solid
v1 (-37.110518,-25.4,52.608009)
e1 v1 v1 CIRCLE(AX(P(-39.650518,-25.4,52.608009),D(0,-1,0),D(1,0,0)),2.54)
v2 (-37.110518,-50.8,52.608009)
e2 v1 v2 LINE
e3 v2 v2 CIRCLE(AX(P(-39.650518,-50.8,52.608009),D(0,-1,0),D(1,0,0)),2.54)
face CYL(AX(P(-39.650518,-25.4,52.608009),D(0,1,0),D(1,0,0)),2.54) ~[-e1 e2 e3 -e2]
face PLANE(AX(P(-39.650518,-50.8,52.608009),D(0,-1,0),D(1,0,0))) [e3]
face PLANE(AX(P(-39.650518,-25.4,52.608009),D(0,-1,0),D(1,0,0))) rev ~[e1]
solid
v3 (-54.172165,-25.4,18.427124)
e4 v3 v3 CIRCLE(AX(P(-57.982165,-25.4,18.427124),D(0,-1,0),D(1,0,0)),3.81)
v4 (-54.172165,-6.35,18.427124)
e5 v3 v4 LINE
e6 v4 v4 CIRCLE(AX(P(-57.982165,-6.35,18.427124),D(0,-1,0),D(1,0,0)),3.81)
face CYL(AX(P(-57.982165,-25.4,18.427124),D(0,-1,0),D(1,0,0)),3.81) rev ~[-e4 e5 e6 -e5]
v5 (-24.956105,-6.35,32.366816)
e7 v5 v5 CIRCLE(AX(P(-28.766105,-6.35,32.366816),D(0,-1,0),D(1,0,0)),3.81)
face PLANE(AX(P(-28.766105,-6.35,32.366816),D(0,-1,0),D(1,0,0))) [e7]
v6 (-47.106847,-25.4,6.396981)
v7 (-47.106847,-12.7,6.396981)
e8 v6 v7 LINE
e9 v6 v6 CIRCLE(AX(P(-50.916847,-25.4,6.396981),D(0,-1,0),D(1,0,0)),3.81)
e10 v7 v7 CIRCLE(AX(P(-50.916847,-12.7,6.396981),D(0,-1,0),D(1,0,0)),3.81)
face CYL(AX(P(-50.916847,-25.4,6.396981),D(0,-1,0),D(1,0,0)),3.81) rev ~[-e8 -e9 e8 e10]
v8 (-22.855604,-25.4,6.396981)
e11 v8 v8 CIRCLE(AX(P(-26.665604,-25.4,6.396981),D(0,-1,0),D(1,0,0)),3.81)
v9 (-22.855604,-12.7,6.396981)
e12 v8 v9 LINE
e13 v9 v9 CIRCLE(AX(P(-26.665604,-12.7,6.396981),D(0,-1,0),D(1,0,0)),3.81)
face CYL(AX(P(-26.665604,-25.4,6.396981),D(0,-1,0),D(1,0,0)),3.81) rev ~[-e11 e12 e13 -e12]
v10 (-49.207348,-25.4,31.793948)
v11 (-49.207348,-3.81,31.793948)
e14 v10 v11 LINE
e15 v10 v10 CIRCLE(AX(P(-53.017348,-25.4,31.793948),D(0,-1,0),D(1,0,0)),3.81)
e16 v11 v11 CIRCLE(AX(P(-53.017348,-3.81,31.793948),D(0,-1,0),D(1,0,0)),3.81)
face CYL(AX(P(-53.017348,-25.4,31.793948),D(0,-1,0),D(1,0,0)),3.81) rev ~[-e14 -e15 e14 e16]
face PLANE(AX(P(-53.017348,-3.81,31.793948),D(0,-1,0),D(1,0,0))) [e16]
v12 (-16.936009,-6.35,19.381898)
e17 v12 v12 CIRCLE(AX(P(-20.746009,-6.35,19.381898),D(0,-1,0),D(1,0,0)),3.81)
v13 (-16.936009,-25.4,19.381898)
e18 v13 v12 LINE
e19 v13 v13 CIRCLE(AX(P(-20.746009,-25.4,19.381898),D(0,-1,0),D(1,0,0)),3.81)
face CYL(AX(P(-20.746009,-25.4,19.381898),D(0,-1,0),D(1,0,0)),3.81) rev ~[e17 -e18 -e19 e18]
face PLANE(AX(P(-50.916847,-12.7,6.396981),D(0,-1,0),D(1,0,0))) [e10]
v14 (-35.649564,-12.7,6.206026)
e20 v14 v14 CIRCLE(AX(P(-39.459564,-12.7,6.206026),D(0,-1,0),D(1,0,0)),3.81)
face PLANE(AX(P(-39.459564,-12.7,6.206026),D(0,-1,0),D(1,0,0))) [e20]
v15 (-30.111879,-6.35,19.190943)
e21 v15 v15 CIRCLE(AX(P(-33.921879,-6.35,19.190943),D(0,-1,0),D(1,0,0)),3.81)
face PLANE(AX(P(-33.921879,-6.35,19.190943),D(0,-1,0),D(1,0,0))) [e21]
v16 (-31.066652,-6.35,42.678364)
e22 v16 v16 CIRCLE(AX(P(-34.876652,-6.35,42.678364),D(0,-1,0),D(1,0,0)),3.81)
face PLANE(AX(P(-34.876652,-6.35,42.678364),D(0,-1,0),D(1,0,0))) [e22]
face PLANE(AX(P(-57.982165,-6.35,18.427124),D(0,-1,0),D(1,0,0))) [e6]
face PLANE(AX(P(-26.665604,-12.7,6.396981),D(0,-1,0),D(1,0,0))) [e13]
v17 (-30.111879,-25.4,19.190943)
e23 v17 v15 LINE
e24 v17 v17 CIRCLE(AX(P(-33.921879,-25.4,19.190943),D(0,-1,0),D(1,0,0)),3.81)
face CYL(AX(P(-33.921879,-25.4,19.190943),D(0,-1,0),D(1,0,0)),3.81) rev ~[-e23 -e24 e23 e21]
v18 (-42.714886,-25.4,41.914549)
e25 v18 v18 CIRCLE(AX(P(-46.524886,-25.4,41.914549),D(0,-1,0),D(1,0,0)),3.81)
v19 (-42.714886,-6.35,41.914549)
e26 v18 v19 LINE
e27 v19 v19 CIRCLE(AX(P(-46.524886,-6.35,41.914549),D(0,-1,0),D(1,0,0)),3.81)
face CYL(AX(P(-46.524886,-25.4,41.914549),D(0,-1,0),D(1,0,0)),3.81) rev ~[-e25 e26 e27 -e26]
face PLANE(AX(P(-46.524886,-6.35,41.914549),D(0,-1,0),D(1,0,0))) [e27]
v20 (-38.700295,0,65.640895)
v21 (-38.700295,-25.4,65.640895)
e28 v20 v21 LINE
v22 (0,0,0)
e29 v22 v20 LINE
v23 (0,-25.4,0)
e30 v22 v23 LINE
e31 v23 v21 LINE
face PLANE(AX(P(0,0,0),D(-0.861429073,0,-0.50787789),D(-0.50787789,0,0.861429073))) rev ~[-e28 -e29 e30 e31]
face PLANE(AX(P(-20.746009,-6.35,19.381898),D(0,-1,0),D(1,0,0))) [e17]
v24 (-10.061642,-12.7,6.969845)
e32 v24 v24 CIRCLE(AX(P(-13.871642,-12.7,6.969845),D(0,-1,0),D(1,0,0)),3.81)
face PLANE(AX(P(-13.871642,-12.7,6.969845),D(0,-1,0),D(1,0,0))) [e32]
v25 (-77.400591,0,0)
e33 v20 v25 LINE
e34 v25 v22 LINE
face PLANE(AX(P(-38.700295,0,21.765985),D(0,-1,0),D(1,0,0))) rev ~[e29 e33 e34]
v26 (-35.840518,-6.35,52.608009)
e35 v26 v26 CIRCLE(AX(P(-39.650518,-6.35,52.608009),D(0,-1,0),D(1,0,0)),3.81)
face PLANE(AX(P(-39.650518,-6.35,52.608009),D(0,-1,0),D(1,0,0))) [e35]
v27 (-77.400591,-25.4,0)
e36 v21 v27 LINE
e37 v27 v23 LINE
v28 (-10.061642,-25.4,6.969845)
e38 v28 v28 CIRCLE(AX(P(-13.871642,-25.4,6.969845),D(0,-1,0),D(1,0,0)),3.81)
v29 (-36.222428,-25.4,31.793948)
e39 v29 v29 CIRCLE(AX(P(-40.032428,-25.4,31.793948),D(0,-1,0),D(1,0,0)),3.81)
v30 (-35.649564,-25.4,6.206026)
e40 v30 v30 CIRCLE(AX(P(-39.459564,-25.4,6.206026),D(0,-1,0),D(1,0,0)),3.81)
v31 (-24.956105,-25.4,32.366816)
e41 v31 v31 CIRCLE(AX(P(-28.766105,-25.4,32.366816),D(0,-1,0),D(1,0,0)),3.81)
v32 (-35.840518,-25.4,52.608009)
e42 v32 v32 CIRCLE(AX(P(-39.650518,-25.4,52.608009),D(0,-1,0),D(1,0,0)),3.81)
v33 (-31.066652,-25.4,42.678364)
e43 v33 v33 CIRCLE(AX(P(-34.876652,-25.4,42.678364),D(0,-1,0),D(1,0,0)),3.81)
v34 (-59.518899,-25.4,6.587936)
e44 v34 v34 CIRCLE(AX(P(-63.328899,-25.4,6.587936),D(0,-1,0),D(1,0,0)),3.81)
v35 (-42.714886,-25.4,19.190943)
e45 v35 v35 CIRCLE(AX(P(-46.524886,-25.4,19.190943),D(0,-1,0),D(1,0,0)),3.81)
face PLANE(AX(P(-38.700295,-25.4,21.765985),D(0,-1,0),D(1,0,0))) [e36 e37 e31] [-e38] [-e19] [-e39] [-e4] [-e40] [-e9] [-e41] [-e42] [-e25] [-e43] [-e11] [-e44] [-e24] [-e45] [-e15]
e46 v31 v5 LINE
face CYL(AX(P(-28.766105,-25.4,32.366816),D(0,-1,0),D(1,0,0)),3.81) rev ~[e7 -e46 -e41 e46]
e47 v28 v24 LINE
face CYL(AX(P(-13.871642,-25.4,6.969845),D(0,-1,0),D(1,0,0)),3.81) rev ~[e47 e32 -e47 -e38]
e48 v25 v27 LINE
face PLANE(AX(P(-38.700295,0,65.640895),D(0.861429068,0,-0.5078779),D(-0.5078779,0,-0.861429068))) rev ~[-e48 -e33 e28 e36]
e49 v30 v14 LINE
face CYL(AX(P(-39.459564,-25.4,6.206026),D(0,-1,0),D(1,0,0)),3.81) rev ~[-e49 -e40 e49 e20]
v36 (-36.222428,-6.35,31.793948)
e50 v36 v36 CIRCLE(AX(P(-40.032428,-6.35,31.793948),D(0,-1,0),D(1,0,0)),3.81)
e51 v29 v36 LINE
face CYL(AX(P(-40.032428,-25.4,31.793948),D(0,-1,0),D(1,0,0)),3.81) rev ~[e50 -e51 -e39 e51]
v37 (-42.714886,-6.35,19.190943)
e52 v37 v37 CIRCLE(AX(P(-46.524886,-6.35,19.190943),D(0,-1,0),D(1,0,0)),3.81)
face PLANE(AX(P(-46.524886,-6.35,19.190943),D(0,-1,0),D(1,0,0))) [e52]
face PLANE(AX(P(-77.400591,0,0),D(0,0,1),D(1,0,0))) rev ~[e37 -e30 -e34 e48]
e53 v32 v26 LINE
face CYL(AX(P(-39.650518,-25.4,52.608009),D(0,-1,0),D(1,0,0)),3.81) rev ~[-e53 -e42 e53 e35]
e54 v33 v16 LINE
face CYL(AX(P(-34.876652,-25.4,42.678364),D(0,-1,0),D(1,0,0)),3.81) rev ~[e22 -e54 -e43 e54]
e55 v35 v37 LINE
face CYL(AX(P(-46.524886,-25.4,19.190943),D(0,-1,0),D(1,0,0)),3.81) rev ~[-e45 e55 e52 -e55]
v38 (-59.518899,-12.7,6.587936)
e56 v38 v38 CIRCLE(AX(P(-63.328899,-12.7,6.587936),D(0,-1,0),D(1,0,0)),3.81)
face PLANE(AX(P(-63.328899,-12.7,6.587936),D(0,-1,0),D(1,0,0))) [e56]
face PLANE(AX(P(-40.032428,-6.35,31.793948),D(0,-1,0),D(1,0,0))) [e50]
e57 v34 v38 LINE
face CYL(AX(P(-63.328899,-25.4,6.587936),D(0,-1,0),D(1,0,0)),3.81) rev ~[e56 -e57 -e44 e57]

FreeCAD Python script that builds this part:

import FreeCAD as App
import Part
import Sketcher

V = App.Vector
Q = App.Units.Quantity

doc = App.newDocument("Part")
body = doc.addObject("PartDesign::Body", "Body")

sketch1 = body.newObject("Sketcher::SketchObject", "Sketch")
sketch1.AttachmentSupport = (doc.getObject("XZ_Plane"), [""])
sketch1.MapMode = "FlatFace"
sketch1.addGeometry([
    Part.LineSegment(V(-77.400591, 0, 0), V(0, 0, 0)),
    Part.LineSegment(V(0, 0, 0), V(-38.700295, 65.640895, 0)),
    Part.LineSegment(V(-38.700295, 65.640895, 0), V(-77.400591, 0, 0)),
], False)
sketch1.addConstraint([
    Sketcher.Constraint("Coincident", 0, 2, 1, 1),
    Sketcher.Constraint("Coincident", 1, 2, 2, 1),
    Sketcher.Constraint("Coincident", 2, 2, 0, 1),
    Sketcher.Constraint("Horizontal", 0),
    Sketcher.Constraint("Coincident", 0, 2, -1, 1),
    Sketcher.Constraint("Equal", 1, 2),
    Sketcher.Constraint("Distance", 1, Q("3 in")),
    Sketcher.Constraint("DistanceX", 0, 1, 0, 2, 77.400591),
])
pad1 = body.newObject("PartDesign::Pad", "Pad")
pad1.Profile = sketch1
pad1.Length = Q("1 in")

sketch2 = body.newObject("Sketcher::SketchObject", "Sketch001")
sketch2.AttachmentSupport = (doc.getObject("XZ_Plane"), [""])
sketch2.MapMode = "FlatFace"
sketch2.AttachmentOffset = App.Placement(V(0, 0, 1 * 25.4), App.Rotation())
sketch2.addGeometry([
    Part.Circle(V(-63.328899, 6.587936, 0), V(0, 0, 1), 3.81),
    Part.Circle(V(-50.916847, 6.396981, 0), V(0, 0, 1), 3.81),
    Part.Circle(V(-39.459564, 6.206026, 0), V(0, 0, 1), 3.81),
    Part.Circle(V(-26.665604, 6.396981, 0), V(0, 0, 1), 3.81),
    Part.Circle(V(-13.871642, 6.969845, 0), V(0, 0, 1), 3.81),
], False)
sketch2.addConstraint([
    Sketcher.Constraint("Equal", 0, 1),
    Sketcher.Constraint("Equal", 1, 2),
    Sketcher.Constraint("Equal", 2, 3),
    Sketcher.Constraint("Equal", 3, 4),
    Sketcher.Constraint("Horizontal", 1, 3, 3, 3),
    Sketcher.Constraint("Diameter", 0, Q("0.3 in")),
    Sketcher.Constraint("DistanceX", 0, 3, -1, 1, 63.328899),
    Sketcher.Constraint("DistanceY", -1, 1, 1, 3, 6.396981),
    Sketcher.Constraint("DistanceY", 2, 3, 0, 3, 0.38191),
    Sketcher.Constraint("DistanceX", 2, 3, 3, 3, 12.79396),
    Sketcher.Constraint("DistanceX", 3, 3, 4, 3, 12.793962),
    Sketcher.Constraint("DistanceY", 2, 3, 4, 3, 0.763819),
    Sketcher.Constraint("DistanceY", -1, 1, 0, 3, 6.587936),
    Sketcher.Constraint("DistanceX", 1, 3, -1, 1, 50.916847),
    Sketcher.Constraint("DistanceX", 2, 3, -1, 1, 39.459564),
])
pocket1 = body.newObject("PartDesign::Pocket", "Pocket")
pocket1.Profile = sketch2
pocket1.Length = Q("0.5 in")

sketch3 = body.newObject("Sketcher::SketchObject", "Sketch002")
sketch3.AttachmentSupport = (doc.getObject("XZ_Plane"), [""])
sketch3.MapMode = "FlatFace"
sketch3.AttachmentOffset = App.Placement(V(0, 0, 1 * 25.4), App.Rotation())
sketch3.addGeometry(Part.Circle(V(-57.60026, 18.999988, 0), V(0, 0, 1), 3.81), False)
sketch3.addConstraint([
    Sketcher.Constraint("Diameter", 0, Q("0.3 in")),
    Sketcher.Constraint("DistanceX", 0, 3, -1, 1, 57.60026),
    Sketcher.Constraint("DistanceY", -1, 1, 0, 3, 18.999988),
])
pocket2 = body.newObject("PartDesign::Pocket", "Pocket001")
pocket2.Profile = sketch3
pocket2.Length = Q("1 in")
pocket2.Reversed = True

sketch4 = body.newObject("Sketcher::SketchObject", "Sketch003")
sketch4.AttachmentSupport = (doc.getObject("XZ_Plane"), [""])
sketch4.MapMode = "FlatFace"
sketch4.AttachmentOffset = App.Placement(V(0, 0, 1 * 25.4), App.Rotation())
sketch4.addGeometry(Part.Circle(V(-46.524886, 19.190943, 0), V(0, 0, 1), 3.81), False)
sketch4.addConstraint([
    Sketcher.Constraint("Diameter", 0, Q("0.3 in")),
    Sketcher.Constraint("DistanceX", 0, 3, -1, 1, 46.524886),
    Sketcher.Constraint("DistanceY", -1, 1, 0, 3, 19.190943),
])
pocket3 = body.newObject("PartDesign::Pocket", "Pocket002")
pocket3.Profile = sketch4
pocket3.Length = Q("0.75 in")

sketch5 = body.newObject("Sketcher::SketchObject", "Sketch004")
sketch5.AttachmentSupport = (doc.getObject("XZ_Plane"), [""])
sketch5.MapMode = "FlatFace"
sketch5.AttachmentOffset = App.Placement(V(0, 0, 1 * 25.4), App.Rotation())
sketch5.addGeometry(Part.Circle(V(-33.921879, 19.190943, 0), V(0, 0, 1), 3.81), False)
sketch5.addConstraint([
    Sketcher.Constraint("Diameter", 0, Q("0.3 in")),
    Sketcher.Constraint("DistanceX", 0, 3, -1, 1, 33.921879),
    Sketcher.Constraint("DistanceY", -1, 1, 0, 3, 19.190943),
])
pocket4 = body.newObject("PartDesign::Pocket", "Pocket003")
pocket4.Profile = sketch5
pocket4.Length = Q("0.75 in")

sketch6 = body.newObject("Sketcher::SketchObject", "Sketch005")
sketch6.AttachmentSupport = (doc.getObject("XZ_Plane"), [""])
sketch6.MapMode = "FlatFace"
sketch6.AttachmentOffset = App.Placement(V(0, 0, 1 * 25.4), App.Rotation())
sketch6.addGeometry(Part.Circle(V(-40.032428, 31.793948, 0), V(0, 0, 1), 3.81), False)
sketch6.addConstraint([
    Sketcher.Constraint("Diameter", 0, Q("0.3 in")),
    Sketcher.Constraint("DistanceX", 0, 3, -1, 1, 40.032428),
    Sketcher.Constraint("DistanceY", -1, 1, 0, 3, 31.793948),
])
pocket5 = body.newObject("PartDesign::Pocket", "Pocket004")
pocket5.Profile = sketch6
pocket5.Length = Q("0.75 in")

sketch7 = body.newObject("Sketcher::SketchObject", "Sketch006")
sketch7.AttachmentSupport = (doc.getObject("XZ_Plane"), [""])
sketch7.MapMode = "FlatFace"
sketch7.AttachmentOffset = App.Placement(V(0, 0, 1 * 25.4), App.Rotation())
sketch7.addGeometry(Part.Circle(V(-20.746009, 19.381898, 0), V(0, 0, 1), 3.81), False)
sketch7.addConstraint([
    Sketcher.Constraint("Diameter", 0, Q("0.3 in")),
    Sketcher.Constraint("DistanceX", 0, 3, -1, 1, 20.746009),
    Sketcher.Constraint("DistanceY", -1, 1, 0, 3, 19.381898),
])
pocket6 = body.newObject("PartDesign::Pocket", "Pocket005")
pocket6.Profile = sketch7
pocket6.Length = Q("0.75 in")

sketch8 = body.newObject("Sketcher::SketchObject", "Sketch007")
sketch8.AttachmentSupport = (doc.getObject("XZ_Plane"), [""])
sketch8.MapMode = "FlatFace"
sketch8.AttachmentOffset = App.Placement(V(0, 0, 1 * 25.4), App.Rotation())
sketch8.addGeometry(Part.Circle(V(-34.876652, 42.678364, 0), V(0, 0, 1), 3.81), False)
sketch8.addConstraint([
    Sketcher.Constraint("Diameter", 0, Q("0.3 in")),
    Sketcher.Constraint("DistanceX", 0, 3, -1, 1, 34.876652),
    Sketcher.Constraint("DistanceY", -1, 1, 0, 3, 42.678364),
])
pocket7 = body.newObject("PartDesign::Pocket", "Pocket006")
pocket7.Profile = sketch8
pocket7.Length = Q("0.75 in")

sketch9 = body.newObject("Sketcher::SketchObject", "Sketch008")
sketch9.AttachmentSupport = (doc.getObject("XZ_Plane"), [""])
sketch9.MapMode = "FlatFace"
sketch9.AttachmentOffset = App.Placement(V(0, 0, 1 * 25.4), App.Rotation())
sketch9.addGeometry(Part.Circle(V(-39.650518, 52.608009, 0), V(0, 0, 1), 3.81), False)
sketch9.addConstraint([
    Sketcher.Constraint("Diameter", 0, Q("0.3 in")),
    Sketcher.Constraint("DistanceY", -1, 1, 0, 3, 52.608009),
    Sketcher.Constraint("DistanceX", 0, 3, -1, 1, 39.650518),
])
pocket8 = body.newObject("PartDesign::Pocket", "Pocket007")
pocket8.Profile = sketch9
pocket8.Length = Q("0.75 in")

sketch10 = body.newObject("Sketcher::SketchObject", "Sketch009")
sketch10.AttachmentSupport = (doc.getObject("XZ_Plane"), [""])
sketch10.MapMode = "FlatFace"
sketch10.AttachmentOffset = App.Placement(V(0, 0, 1 * 25.4), App.Rotation())
sketch10.addGeometry(Part.Circle(V(-46.524886, 41.914549, 0), V(0, 0, 1), 3.81), False)
sketch10.addConstraint([
    Sketcher.Constraint("Diameter", 0, Q("0.3 in")),
    Sketcher.Constraint("DistanceY", -1, 1, 0, 3, 41.914549),
    Sketcher.Constraint("DistanceX", 0, 3, -1, 1, 46.524886),
])
pocket9 = body.newObject("PartDesign::Pocket", "Pocket008")
pocket9.Profile = sketch10
pocket9.Length = Q("0.75 in")

sketch11 = body.newObject("Sketcher::SketchObject", "Sketch010")
sketch11.AttachmentSupport = (doc.getObject("XZ_Plane"), [""])
sketch11.MapMode = "FlatFace"
sketch11.AttachmentOffset = App.Placement(V(0, 0, 1 * 25.4), App.Rotation())
sketch11.addGeometry(Part.Circle(V(-53.017348, 31.793948, 0), V(0, 0, 1), 3.81), False)
sketch11.addConstraint([
    Sketcher.Constraint("Diameter", 0, Q("0.3 in")),
    Sketcher.Constraint("DistanceY", -1, 1, 0, 3, 31.793948),
    Sketcher.Constraint("DistanceX", 0, 3, -1, 1, 53.017348),
])
pocket10 = body.newObject("PartDesign::Pocket", "Pocket009")
pocket10.Profile = sketch11
pocket10.Length = Q("0.85 in")

sketch12 = body.newObject("Sketcher::SketchObject", "Sketch011")
sketch12.AttachmentSupport = (doc.getObject("XZ_Plane"), [""])
sketch12.MapMode = "FlatFace"
sketch12.AttachmentOffset = App.Placement(V(0, 0, 1 * 25.4), App.Rotation())
sketch12.addGeometry(Part.Circle(V(-57.982165, 18.427124, 0), V(0, 0, 1), 3.81), False)
sketch12.addConstraint([
    Sketcher.Constraint("Diameter", 0, Q("0.3 in")),
    Sketcher.Constraint("DistanceX", 0, 3, -1, 1, 57.982165),
    Sketcher.Constraint("DistanceY", -1, 1, 0, 3, 18.427124),
])
pocket11 = body.newObject("PartDesign::Pocket", "Pocket010")
pocket11.Profile = sketch12
pocket11.Length = Q("0.75 in")

sketch13 = body.newObject("Sketcher::SketchObject", "Sketch012")
sketch13.AttachmentSupport = (doc.getObject("XZ_Plane"), [""])
sketch13.MapMode = "FlatFace"
sketch13.AttachmentOffset = App.Placement(V(0, 0, 1 * 25.4), App.Rotation())
sketch13.addGeometry(Part.Circle(V(-28.766105, 32.366816, 0), V(0, 0, 1), 3.81), False)
sketch13.addConstraint([
    Sketcher.Constraint("Diameter", 0, Q("0.3 in")),
    Sketcher.Constraint("DistanceX", 0, 3, -1, 1, 28.766105),
    Sketcher.Constraint("DistanceY", -1, 1, 0, 3, 32.366816),
])
pocket12 = body.newObject("PartDesign::Pocket", "Pocket011")
pocket12.Profile = sketch13
pocket12.Length = Q("0.75 in")
body2 = doc.addObject("PartDesign::Body", "Body001")

sketch14 = body2.newObject("Sketcher::SketchObject", "Sketch013")
sketch14.AttachmentSupport = (doc.getObject("XZ_Plane001"), [""])
sketch14.MapMode = "FlatFace"
sketch14.AttachmentOffset = App.Placement(V(0, 0, 1 * 25.4), App.Rotation())
sketch14.addGeometry(Part.Circle(V(-39.650518, 52.608009, 0), V(0, 0, 1), 2.54), False)
sketch14.addConstraint([
    Sketcher.Constraint("Diameter", 0, Q("0.2 in")),
    Sketcher.Constraint("DistanceY", -1, 1, 0, 3, 52.608009),
    Sketcher.Constraint("DistanceX", 0, 3, -1, 1, 39.650518),
])
pad2 = body2.newObject("PartDesign::Pad", "Pad001")
pad2.Profile = sketch14
pad2.Length = Q("1 in")

doc.recompute()
